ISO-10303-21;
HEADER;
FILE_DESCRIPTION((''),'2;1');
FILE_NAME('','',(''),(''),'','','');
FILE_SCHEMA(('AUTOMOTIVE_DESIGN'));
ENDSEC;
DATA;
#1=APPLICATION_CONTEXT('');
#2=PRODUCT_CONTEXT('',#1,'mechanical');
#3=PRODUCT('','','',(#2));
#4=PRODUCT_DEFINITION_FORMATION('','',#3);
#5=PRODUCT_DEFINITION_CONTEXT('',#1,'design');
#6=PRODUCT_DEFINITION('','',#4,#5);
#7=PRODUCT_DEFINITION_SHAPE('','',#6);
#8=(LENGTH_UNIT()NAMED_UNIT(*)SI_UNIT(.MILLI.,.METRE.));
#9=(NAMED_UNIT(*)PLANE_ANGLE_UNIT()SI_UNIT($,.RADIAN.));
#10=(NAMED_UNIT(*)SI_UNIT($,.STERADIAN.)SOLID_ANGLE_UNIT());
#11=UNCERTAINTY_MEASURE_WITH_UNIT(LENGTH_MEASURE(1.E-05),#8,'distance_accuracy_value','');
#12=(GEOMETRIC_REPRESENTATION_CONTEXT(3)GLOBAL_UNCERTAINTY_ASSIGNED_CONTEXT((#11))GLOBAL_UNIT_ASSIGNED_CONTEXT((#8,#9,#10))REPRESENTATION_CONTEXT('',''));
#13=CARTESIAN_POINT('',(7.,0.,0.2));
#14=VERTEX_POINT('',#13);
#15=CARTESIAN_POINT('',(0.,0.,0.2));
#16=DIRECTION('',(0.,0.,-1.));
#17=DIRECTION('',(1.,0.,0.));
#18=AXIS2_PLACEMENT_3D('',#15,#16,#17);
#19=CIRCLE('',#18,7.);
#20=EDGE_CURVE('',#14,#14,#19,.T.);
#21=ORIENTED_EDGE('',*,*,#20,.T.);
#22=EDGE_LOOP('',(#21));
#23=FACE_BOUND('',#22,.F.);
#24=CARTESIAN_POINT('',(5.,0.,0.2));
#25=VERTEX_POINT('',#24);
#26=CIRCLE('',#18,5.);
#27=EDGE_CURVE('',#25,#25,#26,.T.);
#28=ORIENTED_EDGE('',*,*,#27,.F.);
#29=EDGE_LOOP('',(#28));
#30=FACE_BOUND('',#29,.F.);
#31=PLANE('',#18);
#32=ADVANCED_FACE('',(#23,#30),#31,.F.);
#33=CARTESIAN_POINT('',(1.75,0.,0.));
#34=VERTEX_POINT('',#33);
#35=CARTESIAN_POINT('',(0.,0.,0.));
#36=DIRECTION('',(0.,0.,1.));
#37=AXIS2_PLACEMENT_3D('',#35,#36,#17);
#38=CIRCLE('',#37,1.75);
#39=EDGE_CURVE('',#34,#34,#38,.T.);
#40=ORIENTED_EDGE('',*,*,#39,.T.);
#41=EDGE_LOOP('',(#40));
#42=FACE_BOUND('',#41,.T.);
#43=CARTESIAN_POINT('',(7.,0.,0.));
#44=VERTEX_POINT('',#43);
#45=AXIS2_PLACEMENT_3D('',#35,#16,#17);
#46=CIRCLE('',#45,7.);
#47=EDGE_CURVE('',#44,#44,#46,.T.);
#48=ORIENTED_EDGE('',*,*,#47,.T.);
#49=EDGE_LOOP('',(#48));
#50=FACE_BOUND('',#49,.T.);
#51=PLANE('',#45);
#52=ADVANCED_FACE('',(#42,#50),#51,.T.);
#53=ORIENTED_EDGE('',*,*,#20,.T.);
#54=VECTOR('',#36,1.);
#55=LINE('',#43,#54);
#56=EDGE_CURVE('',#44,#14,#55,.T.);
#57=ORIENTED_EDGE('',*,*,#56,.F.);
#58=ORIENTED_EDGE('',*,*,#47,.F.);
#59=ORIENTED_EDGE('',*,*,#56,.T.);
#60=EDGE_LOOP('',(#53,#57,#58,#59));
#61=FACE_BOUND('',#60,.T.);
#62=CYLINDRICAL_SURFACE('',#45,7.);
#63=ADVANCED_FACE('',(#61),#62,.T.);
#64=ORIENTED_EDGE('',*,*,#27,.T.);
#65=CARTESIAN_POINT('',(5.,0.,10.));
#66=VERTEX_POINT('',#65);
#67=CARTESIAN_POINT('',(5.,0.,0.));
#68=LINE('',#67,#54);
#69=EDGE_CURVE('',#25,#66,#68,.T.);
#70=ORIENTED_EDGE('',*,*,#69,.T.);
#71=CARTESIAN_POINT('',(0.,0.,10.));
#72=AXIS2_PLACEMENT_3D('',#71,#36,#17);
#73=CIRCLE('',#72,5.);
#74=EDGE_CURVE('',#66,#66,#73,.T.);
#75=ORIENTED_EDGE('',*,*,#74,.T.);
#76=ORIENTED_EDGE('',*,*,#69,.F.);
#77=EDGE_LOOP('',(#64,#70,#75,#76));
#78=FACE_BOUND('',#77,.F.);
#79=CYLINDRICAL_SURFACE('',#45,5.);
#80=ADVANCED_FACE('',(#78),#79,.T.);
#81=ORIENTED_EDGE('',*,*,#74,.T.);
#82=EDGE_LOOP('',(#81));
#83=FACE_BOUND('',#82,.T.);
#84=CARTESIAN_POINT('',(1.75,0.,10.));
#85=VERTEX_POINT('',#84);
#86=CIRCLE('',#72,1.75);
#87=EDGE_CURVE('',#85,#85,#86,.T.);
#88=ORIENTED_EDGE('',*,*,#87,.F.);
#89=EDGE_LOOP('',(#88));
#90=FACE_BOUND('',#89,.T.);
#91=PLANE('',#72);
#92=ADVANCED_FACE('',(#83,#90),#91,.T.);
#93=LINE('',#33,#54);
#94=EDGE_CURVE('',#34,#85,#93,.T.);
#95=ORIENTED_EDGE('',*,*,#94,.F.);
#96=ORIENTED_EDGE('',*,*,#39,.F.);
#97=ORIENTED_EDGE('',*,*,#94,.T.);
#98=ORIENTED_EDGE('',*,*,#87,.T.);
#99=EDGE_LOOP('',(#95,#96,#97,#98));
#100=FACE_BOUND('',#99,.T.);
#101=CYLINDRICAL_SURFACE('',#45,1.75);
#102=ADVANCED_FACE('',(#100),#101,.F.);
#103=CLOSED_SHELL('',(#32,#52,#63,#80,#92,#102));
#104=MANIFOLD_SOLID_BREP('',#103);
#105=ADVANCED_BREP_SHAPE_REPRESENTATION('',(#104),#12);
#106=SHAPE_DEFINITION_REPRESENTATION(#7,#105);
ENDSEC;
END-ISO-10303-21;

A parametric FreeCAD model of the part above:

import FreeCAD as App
import Part
import Sketcher

V = App.Vector

doc = App.newDocument("Part")
body = doc.addObject("PartDesign::Body", "Body")

# Sketch on XY plane
sketch1 = body.newObject("Sketcher::SketchObject", "Sketch")
sketch1.AttachmentSupport = (doc.getObject("XY_Plane"), [""])
sketch1.MapMode = "FlatFace"
sketch1.addGeometry(Part.Circle(V(0, 0, 0), V(0, 0, 1), 5), False)
sketch1.addGeometry(Part.Circle(V(0, 0, 0), V(0, 0, 1), 1.75), False)
sketch1.addConstraint(Sketcher.Constraint("Coincident", 0, 3, -1, 1))
sketch1.addConstraint(Sketcher.Constraint("Coincident", 1, 3, -1, 1))
sketch1.addConstraint(Sketcher.Constraint("Diameter", 0, 10.0))
sketch1.addConstraint(Sketcher.Constraint("Diameter", 1, 3.5))
pad1 = body.newObject("PartDesign::Pad", "Pad")
pad1.Profile = sketch1
pad1.Length = 10

# Sketch on XY plane
sketch2 = body.newObject("Sketcher::SketchObject", "Sketch001")
sketch2.AttachmentSupport = (doc.getObject("XY_Plane"), [""])
sketch2.MapMode = "FlatFace"
sketch2.addGeometry(Part.Circle(V(0, 0, 0), V(0, 0, 1), 7), False)
sketch2.addGeometry(Part.Circle(V(0, 0, 0), V(0, 0, 1), 5), False)
sketch2.addConstraint(Sketcher.Constraint("Coincident", 0, 3, -1, 1))
sketch2.addConstraint(Sketcher.Constraint("Coincident", 1, 3, -1, 1))
sketch2.addConstraint(Sketcher.Constraint("Diameter", 0, 14.0))
sketch2.addConstraint(Sketcher.Constraint("Diameter", 1, 10.0))
pad2 = body.newObject("PartDesign::Pad", "Pad001")
pad2.Profile = sketch2
pad2.Length = 0.2

doc.recompute()
